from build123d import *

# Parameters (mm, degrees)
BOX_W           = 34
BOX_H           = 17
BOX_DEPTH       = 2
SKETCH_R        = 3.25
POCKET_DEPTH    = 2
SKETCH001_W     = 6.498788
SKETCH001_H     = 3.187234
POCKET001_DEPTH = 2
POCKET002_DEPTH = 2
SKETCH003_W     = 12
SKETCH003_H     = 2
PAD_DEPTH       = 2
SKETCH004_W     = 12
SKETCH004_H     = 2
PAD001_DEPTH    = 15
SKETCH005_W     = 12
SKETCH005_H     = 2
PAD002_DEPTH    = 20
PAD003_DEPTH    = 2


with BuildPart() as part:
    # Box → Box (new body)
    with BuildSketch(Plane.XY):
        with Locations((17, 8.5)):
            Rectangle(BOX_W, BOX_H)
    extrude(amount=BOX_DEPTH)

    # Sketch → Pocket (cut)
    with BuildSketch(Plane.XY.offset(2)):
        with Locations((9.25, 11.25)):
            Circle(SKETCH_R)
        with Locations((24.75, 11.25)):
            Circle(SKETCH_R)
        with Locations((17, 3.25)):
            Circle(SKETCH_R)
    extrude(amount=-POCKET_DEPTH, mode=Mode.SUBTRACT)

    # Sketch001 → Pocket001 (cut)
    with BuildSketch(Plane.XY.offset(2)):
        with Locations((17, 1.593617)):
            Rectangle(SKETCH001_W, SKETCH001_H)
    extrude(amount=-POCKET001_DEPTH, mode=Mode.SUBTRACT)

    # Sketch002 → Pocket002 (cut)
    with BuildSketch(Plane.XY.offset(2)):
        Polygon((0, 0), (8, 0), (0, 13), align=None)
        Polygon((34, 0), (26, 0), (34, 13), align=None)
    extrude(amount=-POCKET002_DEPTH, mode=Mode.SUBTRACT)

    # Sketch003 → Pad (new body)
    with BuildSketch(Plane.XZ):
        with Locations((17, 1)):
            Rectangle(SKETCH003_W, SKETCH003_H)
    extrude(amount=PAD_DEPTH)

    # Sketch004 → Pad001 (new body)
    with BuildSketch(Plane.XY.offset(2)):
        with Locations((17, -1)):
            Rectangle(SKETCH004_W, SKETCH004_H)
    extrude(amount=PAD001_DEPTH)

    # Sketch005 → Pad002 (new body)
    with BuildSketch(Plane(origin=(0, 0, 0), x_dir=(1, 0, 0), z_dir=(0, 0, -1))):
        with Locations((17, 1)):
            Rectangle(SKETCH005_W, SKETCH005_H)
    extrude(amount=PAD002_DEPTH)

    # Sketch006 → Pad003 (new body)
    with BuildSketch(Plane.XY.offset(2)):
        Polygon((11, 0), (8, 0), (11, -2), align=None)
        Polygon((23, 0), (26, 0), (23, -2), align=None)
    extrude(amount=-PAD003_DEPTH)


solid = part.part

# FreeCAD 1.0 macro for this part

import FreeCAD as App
import Part
import Sketcher
from FreeCAD import Vector
Q = App.Units.Quantity


def add_polygon(sketch, points):
    """Adds a closed chain of lines whose ends are joined by coincident constraints."""
    first, n = sketch.GeometryCount, len(points)
    for a, b in zip(points, points[1:] + points[:1]):
        sketch.addGeometry(Part.LineSegment(App.Vector(*a, 0), App.Vector(*b, 0)), False)
    for i in range(n):
        sketch.addConstraint(Sketcher.Constraint("Coincident", first + i, 2, first + (i + 1) % n, 1))

doc = App.newDocument("Part")
body = doc.addObject("PartDesign::Body", "Body")

# Sketch on XY plane
sketch1 = body.newObject("Sketcher::SketchObject", "Sketch")
sketch1.AttachmentSupport = (doc.getObject("XY_Plane"), [""])
sketch1.MapMode = "FlatFace"
add_polygon(sketch1, [(0, 17), (0, 0), (34, 0), (34, 17)])  # lines 0-3
sketch1.addConstraint([
    Sketcher.Constraint("Vertical", 0),
    Sketcher.Constraint("Horizontal", 1),
    Sketcher.Constraint("Vertical", 2),
    Sketcher.Constraint("Horizontal", 3),
    Sketcher.Constraint("Coincident", 0, 2, -1, 1),
    Sketcher.Constraint("DistanceX", 1, 1, 1, 2, Q("34 mm")),
    Sketcher.Constraint("DistanceY", 0, 2, 0, 1, Q("17 mm")),
])
pad1 = body.newObject("PartDesign::Pad", "Pad")
pad1.Profile = sketch1
pad1.Length = 2

# Sketch on XY plane
sketch2 = body.newObject("Sketcher::SketchObject", "Sketch001")
sketch2.AttachmentSupport = (doc.getObject("XY_Plane"), [""])
sketch2.MapMode = "FlatFace"
sketch2.AttachmentOffset = App.Placement(Vector(0, 0, 2), App.Rotation())
sketch2.addGeometry([
    Part.Circle(Vector(9.2, 11.2, 0), Vector(0, 0, 1), 3.2),
    Part.Circle(Vector(24.8, 11.2, 0), Vector(0, 0, 1), 3.2),
    Part.Circle(Vector(17, 3.2, 0), Vector(0, 0, 1), 3.2),
], False)
sketch2.addConstraint([
    Sketcher.Constraint("Equal", 0, 1),
    Sketcher.Constraint("Equal", 1, 2),
    Sketcher.Constraint("Horizontal", 0, 3, 1, 3),
    Sketcher.Constraint("Diameter", 0, Q("6.5 mm")),
    Sketcher.Constraint("DistanceX", -1, 1, 2, 3, Q("17 mm")),
    Sketcher.Constraint("DistanceY", 2, 3, 0, 3, Q("8 mm")),
    Sketcher.Constraint("DistanceX", 0, 3, 1, 3, Q("15.5 mm")),
    Sketcher.Constraint("DistanceX", -1, 1, 0, 3, Q("9.25 mm")),
    Sketcher.Constraint("DistanceY", -1, 1, 0, 3, Q("11.25 mm")),
])
pocket1 = body.newObject("PartDesign::Pocket", "Pocket")
pocket1.Profile = sketch2
pocket1.Length = 2

# Sketch on XY plane
sketch3 = body.newObject("Sketcher::SketchObject", "Sketch002")
sketch3.AttachmentSupport = (doc.getObject("XY_Plane"), [""])
sketch3.MapMode = "FlatFace"
sketch3.AttachmentOffset = App.Placement(Vector(0, 0, 2), App.Rotation())
add_polygon(sketch3, [(13.8, 3.2), (13.8, 0), (20.2, 0), (20.2, 3.2)])  # lines 0-3
sketch3.addConstraint([
    Sketcher.Constraint("Vertical", 0),
    Sketcher.Constraint("Horizontal", 1),
    Sketcher.Constraint("Vertical", 2),
    Sketcher.Constraint("Horizontal", 3),
    Sketcher.Constraint("PointOnObject", 0, 2, -1),
    Sketcher.Constraint("DistanceX", 1, 1, 1, 2, Q("6.498788 mm")),
    Sketcher.Constraint("DistanceY", 0, 2, 0, 1, Q("3.187234 mm")),
    Sketcher.Constraint("DistanceX", -1, 1, 0, 2, Q("13.750606 mm")),
])
pocket2 = body.newObject("PartDesign::Pocket", "Pocket001")
pocket2.Profile = sketch3
pocket2.Length = 2

# Sketch on XY plane
sketch4 = body.newObject("Sketcher::SketchObject", "Sketch003")
sketch4.AttachmentSupport = (doc.getObject("XY_Plane"), [""])
sketch4.MapMode = "FlatFace"
sketch4.AttachmentOffset = App.Placement(Vector(0, 0, 2), App.Rotation())
add_polygon(sketch4, [(0, 0), (8, 0), (0, 13)])  # lines 0-2
add_polygon(sketch4, [(26, 0), (34, 0), (34, 13)])  # lines 3-5
sketch4.addConstraint([
    Sketcher.Constraint("Horizontal", 0),
    Sketcher.Constraint("Vertical", 2),
    Sketcher.Constraint("Horizontal", 3),
    Sketcher.Constraint("Vertical", 4),
    Sketcher.Constraint("Coincident", 2, 2, -1, 1),
    Sketcher.Constraint("PointOnObject", 3, 2, -1),
    Sketcher.Constraint("Horizontal", 1, 2, 4, 2),
    Sketcher.Constraint("Equal", 0, 3),
    Sketcher.Constraint("DistanceX", 0, 1, 0, 2, Q("8 mm")),
    Sketcher.Constraint("DistanceY", 2, 2, 2, 1, Q("13 mm")),
    Sketcher.Constraint("DistanceX", -1, 1, 3, 2, Q("34 mm")),
])
pocket3 = body.newObject("PartDesign::Pocket", "Pocket002")
pocket3.Profile = sketch4
pocket3.Length = 2

# Sketch on XZ plane
sketch5 = body.newObject("Sketcher::SketchObject", "Sketch004")
sketch5.AttachmentSupport = (doc.getObject("XZ_Plane"), [""])
sketch5.MapMode = "FlatFace"
add_polygon(sketch5, [(11, 2), (11, 0), (23, 0), (23, 2)])  # lines 0-3
sketch5.addConstraint([
    Sketcher.Constraint("Vertical", 0),
    Sketcher.Constraint("Horizontal", 1),
    Sketcher.Constraint("Vertical", 2),
    Sketcher.Constraint("Horizontal", 3),
    Sketcher.Constraint("PointOnObject", 0, 2, -1),
    Sketcher.Constraint("DistanceX", 1, 1, 1, 2, Q("12 mm")),
    Sketcher.Constraint("DistanceY", 0, 2, 0, 1, Q("2 mm")),
    Sketcher.Constraint("DistanceX", -1, 1, 0, 2, Q("11 mm")),
])
pad2 = body.newObject("PartDesign::Pad", "Pad001")
pad2.Profile = sketch5
pad2.Length = 2

# Sketch on XY plane
sketch6 = body.newObject("Sketcher::SketchObject", "Sketch005")
sketch6.AttachmentSupport = (doc.getObject("XY_Plane"), [""])
sketch6.MapMode = "FlatFace"
sketch6.AttachmentOffset = App.Placement(Vector(0, 0, 2), App.Rotation())
add_polygon(sketch6, [(11, 0), (11, -2), (23, -2), (23, 0)])  # lines 0-3
sketch6.addConstraint([
    Sketcher.Constraint("Vertical", 0),
    Sketcher.Constraint("Horizontal", 1),
    Sketcher.Constraint("Vertical", 2),
    Sketcher.Constraint("Horizontal", 3),
    Sketcher.Constraint("PointOnObject", 2, 2, -1),
    Sketcher.Constraint("DistanceX", 1, 1, 1, 2, Q("12 mm")),
    Sketcher.Constraint("DistanceY", 0, 2, 0, 1, Q("2 mm")),
    Sketcher.Constraint("DistanceX", -1, 1, 0, 2, Q("11 mm")),
])
pad3 = body.newObject("PartDesign::Pad", "Pad002")
pad3.Profile = sketch6
pad3.Length = 15

# Sketch on XY plane
sketch7 = body.newObject("Sketcher::SketchObject", "Sketch006")
sketch7.AttachmentSupport = (doc.getObject("XY_Plane"), [""])
sketch7.MapMode = "FlatFace"
add_polygon(sketch7, [(11, -2), (11, 0), (23, 0), (23, -2)])  # lines 0-3
sketch7.addConstraint([
    Sketcher.Constraint("Vertical", 0),
    Sketcher.Constraint("Horizontal", 1),
    Sketcher.Constraint("Vertical", 2),
    Sketcher.Constraint("Horizontal", 3),
    Sketcher.Constraint("PointOnObject", 0, 2, -1),
    Sketcher.Constraint("DistanceX", 1, 1, 1, 2, Q("12 mm")),
    Sketcher.Constraint("DistanceY", 0, 1, 0, 2, Q("2 mm")),
    Sketcher.Constraint("DistanceX", -1, 1, 0, 2, Q("11 mm")),
])
pad4 = body.newObject("PartDesign::Pad", "Pad003")
pad4.Profile = sketch7
pad4.Length = 20
pad4.Reversed = True

# Sketch on XY plane
sketch8 = body.newObject("Sketcher::SketchObject", "Sketch007")
sketch8.AttachmentSupport = (doc.getObject("XY_Plane"), [""])
sketch8.MapMode = "FlatFace"
sketch8.AttachmentOffset = App.Placement(Vector(0, 0, 2), App.Rotation())
add_polygon(sketch8, [(11, 0), (8, 0), (11, -2)])  # lines 0-2
add_polygon(sketch8, [(26, 0), (23, 0), (23, -2)])  # lines 3-5
sketch8.addConstraint([
    Sketcher.Constraint("Horizontal", 0),
    Sketcher.Constraint("Vertical", 2),
    Sketcher.Constraint("Horizontal", 3),
    Sketcher.Constraint("Vertical", 4),
    Sketcher.Constraint("PointOnObject", 0, 2, -1),
    Sketcher.Constraint("PointOnObject", 3, 2, -1),
    Sketcher.Constraint("Horizontal", 1, 2, 4, 2),
    Sketcher.Constraint("Equal", 0, 3),
    Sketcher.Constraint("DistanceX", 0, 2, 0, 1, Q("3 mm")),
    Sketcher.Constraint("DistanceY", 2, 1, 2, 2, Q("2 mm")),
    Sketcher.Constraint("DistanceX", -1, 1, 0, 2, Q("8 mm")),
    Sketcher.Constraint("DistanceX", -1, 1, 3, 2, Q("23 mm")),
])
pad5 = body.newObject("PartDesign::Pad", "Pad004")
pad5.Profile = sketch8
pad5.Length = 2
pad5.Reversed = True

doc.recompute()
